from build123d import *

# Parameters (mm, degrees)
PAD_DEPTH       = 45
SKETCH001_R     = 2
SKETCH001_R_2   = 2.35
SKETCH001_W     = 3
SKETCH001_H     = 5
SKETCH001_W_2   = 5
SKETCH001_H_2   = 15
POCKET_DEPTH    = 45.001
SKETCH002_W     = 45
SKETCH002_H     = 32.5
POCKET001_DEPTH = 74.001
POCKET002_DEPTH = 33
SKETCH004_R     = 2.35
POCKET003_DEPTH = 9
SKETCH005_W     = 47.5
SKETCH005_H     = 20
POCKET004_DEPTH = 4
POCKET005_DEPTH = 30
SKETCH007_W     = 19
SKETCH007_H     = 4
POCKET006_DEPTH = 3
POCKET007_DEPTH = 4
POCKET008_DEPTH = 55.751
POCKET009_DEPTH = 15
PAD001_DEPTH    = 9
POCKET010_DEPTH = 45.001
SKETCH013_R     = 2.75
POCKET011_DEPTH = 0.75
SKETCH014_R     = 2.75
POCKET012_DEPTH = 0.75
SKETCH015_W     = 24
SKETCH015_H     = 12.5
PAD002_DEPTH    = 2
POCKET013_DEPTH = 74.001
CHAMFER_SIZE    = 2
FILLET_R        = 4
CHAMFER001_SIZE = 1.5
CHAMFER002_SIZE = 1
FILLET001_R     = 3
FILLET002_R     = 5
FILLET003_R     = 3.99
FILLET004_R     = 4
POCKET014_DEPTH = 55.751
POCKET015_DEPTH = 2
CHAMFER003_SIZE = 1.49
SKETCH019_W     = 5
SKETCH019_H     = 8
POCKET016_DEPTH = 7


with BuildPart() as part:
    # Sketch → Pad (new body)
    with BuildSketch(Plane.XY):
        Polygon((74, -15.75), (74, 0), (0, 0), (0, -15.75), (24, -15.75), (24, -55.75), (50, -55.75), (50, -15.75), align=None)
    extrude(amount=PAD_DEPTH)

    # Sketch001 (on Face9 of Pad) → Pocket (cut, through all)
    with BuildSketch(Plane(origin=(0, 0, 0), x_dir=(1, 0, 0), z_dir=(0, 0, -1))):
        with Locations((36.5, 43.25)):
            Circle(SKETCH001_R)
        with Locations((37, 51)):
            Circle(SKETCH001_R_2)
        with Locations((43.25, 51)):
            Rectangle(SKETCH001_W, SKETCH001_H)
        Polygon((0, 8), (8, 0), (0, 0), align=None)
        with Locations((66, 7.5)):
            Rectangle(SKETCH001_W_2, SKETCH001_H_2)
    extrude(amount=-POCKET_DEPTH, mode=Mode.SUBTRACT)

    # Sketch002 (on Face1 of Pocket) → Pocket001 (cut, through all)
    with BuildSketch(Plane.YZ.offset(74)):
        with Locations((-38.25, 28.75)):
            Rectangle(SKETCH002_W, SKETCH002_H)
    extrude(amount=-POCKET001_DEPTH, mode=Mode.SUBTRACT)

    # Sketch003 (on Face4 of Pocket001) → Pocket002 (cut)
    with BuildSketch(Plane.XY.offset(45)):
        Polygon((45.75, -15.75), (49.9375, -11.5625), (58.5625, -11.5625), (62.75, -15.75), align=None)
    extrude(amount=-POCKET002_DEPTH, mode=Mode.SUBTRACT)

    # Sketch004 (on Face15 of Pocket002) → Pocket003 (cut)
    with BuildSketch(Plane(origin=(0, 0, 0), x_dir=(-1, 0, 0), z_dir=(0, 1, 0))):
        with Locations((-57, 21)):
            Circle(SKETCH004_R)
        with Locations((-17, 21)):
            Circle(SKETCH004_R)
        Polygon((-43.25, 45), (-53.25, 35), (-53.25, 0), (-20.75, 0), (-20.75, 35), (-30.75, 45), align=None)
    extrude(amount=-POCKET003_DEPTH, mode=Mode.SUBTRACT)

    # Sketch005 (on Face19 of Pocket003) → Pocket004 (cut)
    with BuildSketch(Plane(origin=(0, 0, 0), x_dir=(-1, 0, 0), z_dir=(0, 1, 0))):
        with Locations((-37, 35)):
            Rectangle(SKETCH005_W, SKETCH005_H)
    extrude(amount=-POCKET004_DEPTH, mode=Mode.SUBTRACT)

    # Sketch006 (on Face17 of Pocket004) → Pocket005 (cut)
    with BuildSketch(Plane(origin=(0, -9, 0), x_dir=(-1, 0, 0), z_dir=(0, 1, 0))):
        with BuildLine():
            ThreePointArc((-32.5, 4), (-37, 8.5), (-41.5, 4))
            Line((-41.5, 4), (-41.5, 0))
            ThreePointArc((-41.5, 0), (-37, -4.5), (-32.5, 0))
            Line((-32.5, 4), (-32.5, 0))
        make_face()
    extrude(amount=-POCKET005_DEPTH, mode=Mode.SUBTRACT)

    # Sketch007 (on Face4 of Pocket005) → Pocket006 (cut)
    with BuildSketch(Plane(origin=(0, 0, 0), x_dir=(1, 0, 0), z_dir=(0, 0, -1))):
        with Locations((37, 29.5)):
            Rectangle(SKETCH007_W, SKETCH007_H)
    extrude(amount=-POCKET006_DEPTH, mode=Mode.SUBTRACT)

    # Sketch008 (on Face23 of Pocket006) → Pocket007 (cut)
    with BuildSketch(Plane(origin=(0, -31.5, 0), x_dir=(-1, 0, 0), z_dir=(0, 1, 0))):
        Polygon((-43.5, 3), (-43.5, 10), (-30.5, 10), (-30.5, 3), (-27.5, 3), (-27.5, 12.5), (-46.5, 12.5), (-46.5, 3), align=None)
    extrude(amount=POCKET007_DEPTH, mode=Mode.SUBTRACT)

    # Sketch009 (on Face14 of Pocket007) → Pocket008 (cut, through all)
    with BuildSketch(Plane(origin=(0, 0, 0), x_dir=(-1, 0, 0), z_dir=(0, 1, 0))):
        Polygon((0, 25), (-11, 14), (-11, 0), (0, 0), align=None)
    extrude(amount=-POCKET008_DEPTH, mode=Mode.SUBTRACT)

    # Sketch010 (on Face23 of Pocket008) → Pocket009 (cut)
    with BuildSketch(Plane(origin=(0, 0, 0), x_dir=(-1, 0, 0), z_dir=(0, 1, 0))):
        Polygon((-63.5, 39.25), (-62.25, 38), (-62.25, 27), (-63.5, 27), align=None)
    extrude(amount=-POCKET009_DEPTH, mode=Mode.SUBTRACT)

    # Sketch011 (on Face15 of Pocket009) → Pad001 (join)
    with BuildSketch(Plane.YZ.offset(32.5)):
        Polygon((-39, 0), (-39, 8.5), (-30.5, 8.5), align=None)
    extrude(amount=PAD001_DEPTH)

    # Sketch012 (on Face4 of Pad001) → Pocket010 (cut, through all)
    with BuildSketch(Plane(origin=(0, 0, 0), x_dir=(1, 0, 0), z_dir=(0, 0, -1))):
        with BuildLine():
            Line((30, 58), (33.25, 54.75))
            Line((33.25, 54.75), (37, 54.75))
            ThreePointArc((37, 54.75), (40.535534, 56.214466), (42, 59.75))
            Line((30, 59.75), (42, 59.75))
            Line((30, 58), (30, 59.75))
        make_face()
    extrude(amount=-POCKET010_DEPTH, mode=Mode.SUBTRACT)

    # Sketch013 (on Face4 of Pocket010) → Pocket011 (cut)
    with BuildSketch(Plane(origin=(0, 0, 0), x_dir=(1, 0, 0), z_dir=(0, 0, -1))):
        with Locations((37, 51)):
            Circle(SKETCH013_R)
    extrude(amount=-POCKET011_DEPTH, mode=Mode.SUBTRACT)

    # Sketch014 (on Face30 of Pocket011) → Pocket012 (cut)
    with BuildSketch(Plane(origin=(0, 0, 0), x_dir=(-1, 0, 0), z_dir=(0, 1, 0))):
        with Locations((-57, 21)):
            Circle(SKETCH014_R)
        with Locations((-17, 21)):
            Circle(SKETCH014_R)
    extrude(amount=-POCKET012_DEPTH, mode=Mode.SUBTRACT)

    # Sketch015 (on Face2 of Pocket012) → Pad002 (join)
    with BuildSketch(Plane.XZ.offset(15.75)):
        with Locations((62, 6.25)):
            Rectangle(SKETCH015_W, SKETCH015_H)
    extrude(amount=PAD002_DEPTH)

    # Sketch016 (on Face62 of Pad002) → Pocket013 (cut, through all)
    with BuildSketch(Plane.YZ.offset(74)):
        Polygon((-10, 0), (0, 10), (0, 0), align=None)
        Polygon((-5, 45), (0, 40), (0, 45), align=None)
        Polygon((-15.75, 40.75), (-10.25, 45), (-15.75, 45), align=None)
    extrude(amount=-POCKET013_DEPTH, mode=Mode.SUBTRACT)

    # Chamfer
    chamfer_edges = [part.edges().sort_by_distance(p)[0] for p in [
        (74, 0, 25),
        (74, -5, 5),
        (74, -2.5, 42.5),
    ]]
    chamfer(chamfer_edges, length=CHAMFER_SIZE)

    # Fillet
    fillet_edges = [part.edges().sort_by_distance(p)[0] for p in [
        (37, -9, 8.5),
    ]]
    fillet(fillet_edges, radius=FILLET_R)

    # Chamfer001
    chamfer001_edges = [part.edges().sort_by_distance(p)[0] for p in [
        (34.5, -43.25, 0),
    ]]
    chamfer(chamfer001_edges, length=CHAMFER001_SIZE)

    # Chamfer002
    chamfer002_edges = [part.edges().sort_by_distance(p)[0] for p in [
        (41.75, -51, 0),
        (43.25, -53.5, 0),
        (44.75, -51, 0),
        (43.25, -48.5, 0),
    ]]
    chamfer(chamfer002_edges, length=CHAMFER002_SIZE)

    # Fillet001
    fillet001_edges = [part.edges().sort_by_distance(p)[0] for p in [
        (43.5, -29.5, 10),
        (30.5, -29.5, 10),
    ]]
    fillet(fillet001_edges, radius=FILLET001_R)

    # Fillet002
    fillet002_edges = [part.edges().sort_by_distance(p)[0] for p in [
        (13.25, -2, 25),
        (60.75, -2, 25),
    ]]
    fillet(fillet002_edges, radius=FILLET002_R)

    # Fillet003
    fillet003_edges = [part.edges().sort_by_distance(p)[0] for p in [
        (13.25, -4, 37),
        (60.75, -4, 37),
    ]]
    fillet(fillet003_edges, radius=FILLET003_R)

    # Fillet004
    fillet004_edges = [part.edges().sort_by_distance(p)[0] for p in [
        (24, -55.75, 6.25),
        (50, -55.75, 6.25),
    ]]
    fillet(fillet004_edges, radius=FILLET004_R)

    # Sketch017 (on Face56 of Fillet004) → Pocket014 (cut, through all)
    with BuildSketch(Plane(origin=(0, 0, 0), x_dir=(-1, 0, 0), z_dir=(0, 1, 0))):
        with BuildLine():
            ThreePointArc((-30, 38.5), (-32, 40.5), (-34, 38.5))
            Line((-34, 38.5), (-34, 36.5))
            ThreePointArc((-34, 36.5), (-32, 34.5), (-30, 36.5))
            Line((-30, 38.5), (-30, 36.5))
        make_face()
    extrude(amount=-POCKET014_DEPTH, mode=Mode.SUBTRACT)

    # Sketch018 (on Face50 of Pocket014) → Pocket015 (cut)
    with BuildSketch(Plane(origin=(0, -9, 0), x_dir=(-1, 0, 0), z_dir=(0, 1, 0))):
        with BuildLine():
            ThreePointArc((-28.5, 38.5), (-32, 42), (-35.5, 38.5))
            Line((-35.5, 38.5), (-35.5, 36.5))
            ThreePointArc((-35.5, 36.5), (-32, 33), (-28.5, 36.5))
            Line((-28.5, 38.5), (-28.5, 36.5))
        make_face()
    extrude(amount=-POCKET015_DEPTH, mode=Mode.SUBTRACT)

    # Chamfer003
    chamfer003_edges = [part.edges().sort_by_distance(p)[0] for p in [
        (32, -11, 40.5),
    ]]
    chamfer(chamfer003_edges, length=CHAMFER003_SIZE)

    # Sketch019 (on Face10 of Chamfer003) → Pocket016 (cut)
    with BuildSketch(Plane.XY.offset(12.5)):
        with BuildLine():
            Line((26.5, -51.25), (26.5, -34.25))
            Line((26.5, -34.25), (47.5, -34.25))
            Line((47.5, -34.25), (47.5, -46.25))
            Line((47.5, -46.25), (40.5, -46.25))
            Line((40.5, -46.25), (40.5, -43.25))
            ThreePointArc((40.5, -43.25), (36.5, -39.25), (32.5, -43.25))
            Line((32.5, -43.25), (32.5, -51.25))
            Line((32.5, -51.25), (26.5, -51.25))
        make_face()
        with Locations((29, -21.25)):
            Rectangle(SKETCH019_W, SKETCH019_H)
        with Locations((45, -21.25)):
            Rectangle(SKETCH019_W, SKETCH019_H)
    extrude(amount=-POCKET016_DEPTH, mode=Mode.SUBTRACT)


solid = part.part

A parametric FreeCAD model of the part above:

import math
import FreeCAD as App
import Part
import Sketcher
from FreeCAD import Vector
Q = App.Units.Quantity


def edges_at(feature, points):
    """Names of the edges that pass closest to the given points."""
    edges = feature.Shape.Edges
    near = lambda p: min(range(len(edges)), key=lambda i: edges[i].distToShape(Part.Vertex(*p))[0])
    return sorted({f"Edge{near(p) + 1}" for p in points})

doc = App.newDocument("Part")
body = doc.addObject("PartDesign::Body", "Body")

# Sketch on XY plane
sketch1 = doc.addObject("Sketcher::SketchObject", "Sketch")
body.addObject(sketch1)
sketch1.AttachmentSupport = (doc.XY_Plane, [""])
sketch1.MapMode = "FlatFace"
sketch1.addGeometry([
    Part.LineSegment(Vector(74, -15.75, 0), Vector(74, 0, 0)),  # 0
    Part.LineSegment(Vector(74, 0, 0), Vector(0, 0, 0)),  # 1
    Part.LineSegment(Vector(0, 0, 0), Vector(0, -15.75, 0)),  # 2
    Part.LineSegment(Vector(0, -15.75, 0), Vector(24, -15.75, 0)),  # 3
    Part.LineSegment(Vector(24, -15.75, 0), Vector(24, -55.75, 0)),  # 4
    Part.LineSegment(Vector(24, -55.75, 0), Vector(50, -55.75, 0)),  # 5
    Part.LineSegment(Vector(50, -55.75, 0), Vector(50, -15.75, 0)),  # 6
    Part.LineSegment(Vector(50, -15.75, 0), Vector(74, -15.75, 0)),  # 7
], False)
sketch1.addConstraint([
    Sketcher.Constraint("Coincident", 0, 2, 1, 1),
    Sketcher.Constraint("Coincident", 1, 2, 2, 1),
    Sketcher.Constraint("Coincident", 2, 2, 3, 1),
    Sketcher.Constraint("Coincident", 3, 2, 4, 1),
    Sketcher.Constraint("Coincident", 4, 2, 5, 1),
    Sketcher.Constraint("Coincident", 5, 2, 6, 1),
    Sketcher.Constraint("Coincident", 6, 2, 7, 1),
    Sketcher.Constraint("Coincident", 7, 2, 0, 1),
    Sketcher.Constraint("Vertical", 0),
    Sketcher.Constraint("Horizontal", 1),
    Sketcher.Constraint("Vertical", 2),
    Sketcher.Constraint("Horizontal", 3),
    Sketcher.Constraint("Vertical", 4),
    Sketcher.Constraint("Horizontal", 5),
    Sketcher.Constraint("Vertical", 6),
    Sketcher.Constraint("Horizontal", 7),
    Sketcher.Constraint("Coincident", 1, 2, -1, 1),
    Sketcher.Constraint("Horizontal", 3, 2, 6, 2),
    Sketcher.Constraint("Equal", 3, 7),
    Sketcher.Constraint("DistanceX", 1, 2, 1, 1, 74.0),
    Sketcher.Constraint("DistanceX", 3, 1, 3, 2, 24.0),
    Sketcher.Constraint("DistanceY", 4, 2, 4, 1, 40.0),
    Sketcher.Constraint("DistanceY", 0, 1, 0, 2, 15.75),
])
pad1 = doc.addObject("PartDesign::Pad", "Pad")
body.addObject(pad1)
pad1.Profile = sketch1
pad1.Length = 45

# Sketch on XY plane
sketch2 = doc.addObject("Sketcher::SketchObject", "Sketch001")
body.addObject(sketch2)
sketch2.AttachmentSupport = (doc.XY_Plane, [""])
sketch2.MapMode = "FlatFace"
sketch2.addGeometry([
    Part.Circle(Vector(36.5, -43.25, 0), Vector(0, 0, 1), 2),  # 0
    Part.Circle(Vector(37, -51, 0), Vector(0, 0, 1), 2.35),  # 1
    Part.LineSegment(Vector(41.75, -53.5, 0), Vector(41.75, -48.5, 0)),  # 2
    Part.LineSegment(Vector(41.75, -48.5, 0), Vector(44.75, -48.5, 0)),  # 3
    Part.LineSegment(Vector(44.75, -48.5, 0), Vector(44.75, -53.5, 0)),  # 4
    Part.LineSegment(Vector(44.75, -53.5, 0), Vector(41.75, -53.5, 0)),  # 5
    Part.LineSegment(Vector(8, 0, 0), Vector(0, -8, 0)),  # 6
    Part.LineSegment(Vector(0, -8, 0), Vector(0, 0, 0)),  # 7
    Part.LineSegment(Vector(0, 0, 0), Vector(8, 0, 0)),  # 8
    Part.LineSegment(Vector(63.5, -15, 0), Vector(63.5, 0, 0)),  # 9
    Part.LineSegment(Vector(63.5, 0, 0), Vector(68.5, 0, 0)),  # 10
    Part.LineSegment(Vector(68.5, 0, 0), Vector(68.5, -15, 0)),  # 11
    Part.LineSegment(Vector(68.5, -15, 0), Vector(63.5, -15, 0)),  # 12
], False)
sketch2.addConstraint([
    Sketcher.Constraint("Coincident", 2, 2, 3, 1),
    Sketcher.Constraint("Coincident", 3, 2, 4, 1),
    Sketcher.Constraint("Coincident", 4, 2, 5, 1),
    Sketcher.Constraint("Coincident", 5, 2, 2, 1),
    Sketcher.Constraint("Coincident", 6, 2, 7, 1),
    Sketcher.Constraint("Coincident", 7, 2, 8, 1),
    Sketcher.Constraint("Coincident", 8, 2, 6, 1),
    Sketcher.Constraint("Coincident", 9, 2, 10, 1),
    Sketcher.Constraint("Coincident", 10, 2, 11, 1),
    Sketcher.Constraint("Coincident", 11, 2, 12, 1),
    Sketcher.Constraint("Coincident", 12, 2, 9, 1),
    Sketcher.Constraint("Vertical", 2),
    Sketcher.Constraint("Horizontal", 3),
    Sketcher.Constraint("Vertical", 4),
    Sketcher.Constraint("Horizontal", 5),
    Sketcher.Constraint("Vertical", 7),
    Sketcher.Constraint("Horizontal", 8),
    Sketcher.Constraint("Vertical", 9),
    Sketcher.Constraint("Horizontal", 10),
    Sketcher.Constraint("Vertical", 11),
    Sketcher.Constraint("Horizontal", 12),
    Sketcher.Constraint("Coincident", 7, 2, -1, 1),
    Sketcher.Constraint("PointOnObject", 9, 2, -1),
    Sketcher.Constraint("Equal", 12, 2),
    Sketcher.Constraint("Equal", 8, 7),
    Sketcher.Constraint("Diameter", 0, 4.0),
    Sketcher.Constraint("Diameter", 1, 4.7),
    Sketcher.Constraint("DistanceX", 3, 1, 3, 2, 3.0),
    Sketcher.Constraint("DistanceX", 8, 1, 8, 2, 8.0),
    Sketcher.Constraint("DistanceX", 10, 1, 10, 2, 5.0),
    Sketcher.Constraint("DistanceY", 9, 1, 9, 2, 15.0),
    Sketcher.Constraint("DistanceX", -1, 1, 1, 3, 37.0),
    Sketcher.Constraint("DistanceY", 1, 3, -1, 1, 51.0),
    Sketcher.Constraint("DistanceX", 0, 3, 9, 2, 27.0),
    Sketcher.Constraint("DistanceX", -1, 1, 0, 3, 36.5),
    Sketcher.Constraint("DistanceY", 2, 2, -1, 1, 48.5),
    Sketcher.Constraint("DistanceY", 0, 3, -1, 1, 43.25),
    Sketcher.Constraint("DistanceX", -1, 1, 2, 2, 41.75),
])
pocket1 = doc.addObject("PartDesign::Pocket", "Pocket")
body.addObject(pocket1)
pocket1.Profile = sketch2
pocket1.Type = "ThroughAll"
pocket1.Reversed = True

# Sketch on YZ plane
sketch3 = doc.addObject("Sketcher::SketchObject", "Sketch002")
body.addObject(sketch3)
sketch3.AttachmentSupport = (doc.YZ_Plane, [""])
sketch3.MapMode = "FlatFace"
sketch3.AttachmentOffset = App.Placement(Vector(0, 0, 74), App.Rotation())
sketch3.addGeometry([
    Part.LineSegment(Vector(-60.75, 45, 0), Vector(-60.75, 12.5, 0)),
    Part.LineSegment(Vector(-60.75, 12.5, 0), Vector(-15.75, 12.5, 0)),
    Part.LineSegment(Vector(-15.75, 12.5, 0), Vector(-15.75, 45, 0)),
    Part.LineSegment(Vector(-15.75, 45, 0), Vector(-60.75, 45, 0)),
], False)
sketch3.addConstraint([
    Sketcher.Constraint("Coincident", 0, 2, 1, 1),
    Sketcher.Constraint("Coincident", 1, 2, 2, 1),
    Sketcher.Constraint("Coincident", 2, 2, 3, 1),
    Sketcher.Constraint("Coincident", 3, 2, 0, 1),
    Sketcher.Constraint("Vertical", 0),
    Sketcher.Constraint("Horizontal", 1),
    Sketcher.Constraint("Vertical", 2),
    Sketcher.Constraint("Horizontal", 3),
    Sketcher.Constraint("DistanceX", 1, 1, 1, 2, 45.0),
    Sketcher.Constraint("DistanceY", 0, 2, 0, 1, 32.5),
    Sketcher.Constraint("DistanceY", -1, 1, 2, 2, 45.0),
    Sketcher.Constraint("DistanceX", 0, 2, -1, 1, 60.75),
])
pocket2 = doc.addObject("PartDesign::Pocket", "Pocket001")
body.addObject(pocket2)
pocket2.Profile = sketch3
pocket2.Type = "ThroughAll"

# Sketch on XY plane
sketch4 = doc.addObject("Sketcher::SketchObject", "Sketch003")
body.addObject(sketch4)
sketch4.AttachmentSupport = (doc.XY_Plane, [""])
sketch4.MapMode = "FlatFace"
sketch4.AttachmentOffset = App.Placement(Vector(0, 0, 45), App.Rotation())
sketch4.addGeometry([
    Part.LineSegment(Vector(49.9375, -11.5625, 0), Vector(45.75, -15.75, 0)),
    Part.LineSegment(Vector(45.75, -15.75, 0), Vector(62.75, -15.75, 0)),
    Part.LineSegment(Vector(62.75, -15.75, 0), Vector(58.5625, -11.5625, 0)),
    Part.LineSegment(Vector(58.5625, -11.5625, 0), Vector(49.9375, -11.5625, 0)),
], False)
sketch4.addConstraint([
    Sketcher.Constraint("Coincident", 0, 2, 1, 1),
    Sketcher.Constraint("Coincident", 1, 2, 2, 1),
    Sketcher.Constraint("Coincident", 2, 2, 3, 1),
    Sketcher.Constraint("Coincident", 3, 2, 0, 1),
    Sketcher.Constraint("Horizontal", 1),
    Sketcher.Constraint("Horizontal", 3),
    Sketcher.Constraint("Perpendicular", 0, 2),
    Sketcher.Constraint("Equal", 0, 2),
    Sketcher.Constraint("DistanceX", 1, 1, 1, 2, 17.0),
    Sketcher.Constraint("DistanceX", 3, 2, 3, 1, 8.625),
    Sketcher.Constraint("DistanceX", -1, 1, 0, 2, 45.75),
    Sketcher.Constraint("DistanceY", 0, 2, -1, 1, 15.75),
])
pocket3 = doc.addObject("PartDesign::Pocket", "Pocket002")
body.addObject(pocket3)
pocket3.Profile = sketch4
pocket3.Length = 33

# Sketch on XZ plane
sketch5 = doc.addObject("Sketcher::SketchObject", "Sketch004")
body.addObject(sketch5)
sketch5.AttachmentSupport = (doc.XZ_Plane, [""])
sketch5.MapMode = "FlatFace"
sketch5.addGeometry([
    Part.Circle(Vector(57, 21, 0), Vector(0, 0, 1), 2.35),  # 0
    Part.Circle(Vector(17, 21, 0), Vector(0, 0, 1), 2.35),  # 1
    Part.LineSegment(Vector(43.25, 45, 0), Vector(53.25, 35, 0)),  # 2
    Part.LineSegment(Vector(53.25, 35, 0), Vector(53.25, 0, 0)),  # 3
    Part.LineSegment(Vector(53.25, 0, 0), Vector(20.75, 0, 0)),  # 4
    Part.LineSegment(Vector(20.75, 0, 0), Vector(20.75, 35, 0)),  # 5
    Part.LineSegment(Vector(20.75, 35, 0), Vector(30.75, 45, 0)),  # 6
    Part.LineSegment(Vector(30.75, 45, 0), Vector(43.25, 45, 0)),  # 7
], False)
sketch5.addConstraint([
    Sketcher.Constraint("Coincident", 2, 2, 3, 1),
    Sketcher.Constraint("Coincident", 3, 2, 4, 1),
    Sketcher.Constraint("Coincident", 4, 2, 5, 1),
    Sketcher.Constraint("Coincident", 5, 2, 6, 1),
    Sketcher.Constraint("Coincident", 6, 2, 7, 1),
    Sketcher.Constraint("Coincident", 7, 2, 2, 1),
    Sketcher.Constraint("Vertical", 3),
    Sketcher.Constraint("Horizontal", 4),
    Sketcher.Constraint("Vertical", 5),
    Sketcher.Constraint("Horizontal", 7),
    Sketcher.Constraint("Equal", 0, 1),
    Sketcher.Constraint("PointOnObject", 3, 2, -1),
    Sketcher.Constraint("Perpendicular", 2, 6),
    Sketcher.Constraint("Horizontal", 0, 3, 1, 3),
    Sketcher.Constraint("Horizontal", 2, 2, 5, 2),
    Sketcher.Constraint("Equal", 2, 6),
    Sketcher.Constraint("Diameter", 0, 4.7),
    Sketcher.Constraint("DistanceY", 3, 2, 3, 1, 35.0),
    Sketcher.Constraint("DistanceX", 4, 2, 4, 1, 32.5),
    Sketcher.Constraint("DistanceX", 7, 1, 7, 2, 12.5),
    Sketcher.Constraint("DistanceX", -1, 1, 0, 3, 57.0),
    Sketcher.Constraint("DistanceY", -1, 1, 0, 3, 21.0),
    Sketcher.Constraint("DistanceX", -1, 1, 1, 3, 17.0),
    Sketcher.Constraint("DistanceX", -1, 1, 2, 2, 53.25),
])
pocket4 = doc.addObject("PartDesign::Pocket", "Pocket003")
body.addObject(pocket4)
pocket4.Profile = sketch5
pocket4.Length = 9
pocket4.Reversed = True

# Sketch on XZ plane
sketch6 = doc.addObject("Sketcher::SketchObject", "Sketch005")
body.addObject(sketch6)
sketch6.AttachmentSupport = (doc.XZ_Plane, [""])
sketch6.MapMode = "FlatFace"
sketch6.addGeometry([
    Part.LineSegment(Vector(60.75, 45, 0), Vector(60.75, 25, 0)),
    Part.LineSegment(Vector(60.75, 25, 0), Vector(13.25, 25, 0)),
    Part.LineSegment(Vector(13.25, 25, 0), Vector(13.25, 45, 0)),
    Part.LineSegment(Vector(13.25, 45, 0), Vector(60.75, 45, 0)),
], False)
sketch6.addConstraint([
    Sketcher.Constraint("Coincident", 0, 2, 1, 1),
    Sketcher.Constraint("Coincident", 1, 2, 2, 1),
    Sketcher.Constraint("Coincident", 2, 2, 3, 1),
    Sketcher.Constraint("Coincident", 3, 2, 0, 1),
    Sketcher.Constraint("Vertical", 0),
    Sketcher.Constraint("Horizontal", 1),
    Sketcher.Constraint("Vertical", 2),
    Sketcher.Constraint("Horizontal", 3),
    Sketcher.Constraint("DistanceY", 0, 2, 0, 1, 20.0),
    Sketcher.Constraint("DistanceX", 1, 2, 1, 1, 47.5),
    Sketcher.Constraint("DistanceY", -1, 1, 0, 2, 25.0),
    Sketcher.Constraint("DistanceX", -1, 1, 0, 2, 60.75),
])
pocket5 = doc.addObject("PartDesign::Pocket", "Pocket004")
body.addObject(pocket5)
pocket5.Profile = sketch6
pocket5.Length = 4
pocket5.Reversed = True

# Sketch on XZ plane
sketch7 = doc.addObject("Sketcher::SketchObject", "Sketch006")
body.addObject(sketch7)
sketch7.AttachmentSupport = (doc.XZ_Plane, [""])
sketch7.MapMode = "FlatFace"
sketch7.AttachmentOffset = App.Placement(Vector(0, 0, 9), App.Rotation())
sketch7.addGeometry([
    Part.ArcOfCircle(Part.Circle(Vector(37, 4, 0), Vector(0, 0, 1), 4.5), math.radians(0), math.radians(180)),
    Part.LineSegment(Vector(41.5, 4, 0), Vector(41.5, 0, 0)),
    Part.ArcOfCircle(Part.Circle(Vector(37, 0, 0), Vector(0, 0, 1), 4.5), math.radians(180), math.radians(360)),
    Part.LineSegment(Vector(32.5, 0, 0), Vector(32.5, 4, 0)),
], False)
sketch7.addConstraint([
    Sketcher.Constraint("Tangent", 0, 1, 1, 1),
    Sketcher.Constraint("Tangent", 1, 2, 2, 2),
    Sketcher.Constraint("Tangent", 2, 1, 3, 1),
    Sketcher.Constraint("Tangent", 3, 2, 0, 2),
    Sketcher.Constraint("Vertical", 1),
    Sketcher.Constraint("Vertical", 3),
    Sketcher.Constraint("PointOnObject", 2, 3, -1),
    Sketcher.Constraint("Radius", 0, 4.5),
    Sketcher.Constraint("DistanceY", 1, 2, 1, 1, 4.0),
    Sketcher.Constraint("DistanceX", -1, 1, 0, 3, 37.0),
])
pocket6 = doc.addObject("PartDesign::Pocket", "Pocket005")
body.addObject(pocket6)
pocket6.Profile = sketch7
pocket6.Length = 30
pocket6.Reversed = True

# Sketch on XY plane
sketch8 = doc.addObject("Sketcher::SketchObject", "Sketch007")
body.addObject(sketch8)
sketch8.AttachmentSupport = (doc.XY_Plane, [""])
sketch8.MapMode = "FlatFace"
sketch8.addGeometry([
    Part.LineSegment(Vector(27.5, -31.5, 0), Vector(27.5, -27.5, 0)),
    Part.LineSegment(Vector(27.5, -27.5, 0), Vector(46.5, -27.5, 0)),
    Part.LineSegment(Vector(46.5, -27.5, 0), Vector(46.5, -31.5, 0)),
    Part.LineSegment(Vector(46.5, -31.5, 0), Vector(27.5, -31.5, 0)),
], False)
sketch8.addConstraint([
    Sketcher.Constraint("Coincident", 0, 2, 1, 1),
    Sketcher.Constraint("Coincident", 1, 2, 2, 1),
    Sketcher.Constraint("Coincident", 2, 2, 3, 1),
    Sketcher.Constraint("Coincident", 3, 2, 0, 1),
    Sketcher.Constraint("Vertical", 0),
    Sketcher.Constraint("Horizontal", 1),
    Sketcher.Constraint("Vertical", 2),
    Sketcher.Constraint("Horizontal", 3),
    Sketcher.Constraint("DistanceX", 1, 1, 1, 2, 19.0),
    Sketcher.Constraint("DistanceY", 0, 1, 0, 2, 4.0),
    Sketcher.Constraint("DistanceX", -1, 1, 0, 2, 27.5),
    Sketcher.Constraint("DistanceY", 0, 2, -1, 1, 27.5),
])
pocket7 = doc.addObject("PartDesign::Pocket", "Pocket006")
body.addObject(pocket7)
pocket7.Profile = sketch8
pocket7.Length = 3
pocket7.Reversed = True

# Sketch on XZ plane
sketch9 = doc.addObject("Sketcher::SketchObject", "Sketch008")
body.addObject(sketch9)
sketch9.AttachmentSupport = (doc.XZ_Plane, [""])
sketch9.MapMode = "FlatFace"
sketch9.AttachmentOffset = App.Placement(Vector(0, 0, 31.5), App.Rotation())
sketch9.addGeometry([
    Part.LineSegment(Vector(43.5, 3, 0), Vector(43.5, 10, 0)),  # 0
    Part.LineSegment(Vector(43.5, 10, 0), Vector(30.5, 10, 0)),  # 1
    Part.LineSegment(Vector(30.5, 10, 0), Vector(30.5, 3, 0)),  # 2
    Part.LineSegment(Vector(30.5, 3, 0), Vector(27.5, 3, 0)),  # 3
    Part.LineSegment(Vector(27.5, 3, 0), Vector(27.5, 12.5, 0)),  # 4
    Part.LineSegment(Vector(27.5, 12.5, 0), Vector(46.5, 12.5, 0)),  # 5
    Part.LineSegment(Vector(46.5, 12.5, 0), Vector(46.5, 3, 0)),  # 6
    Part.LineSegment(Vector(46.5, 3, 0), Vector(43.5, 3, 0)),  # 7
], False)
sketch9.addConstraint([
    Sketcher.Constraint("Coincident", 0, 2, 1, 1),
    Sketcher.Constraint("Coincident", 1, 2, 2, 1),
    Sketcher.Constraint("Coincident", 2, 2, 3, 1),
    Sketcher.Constraint("Coincident", 3, 2, 4, 1),
    Sketcher.Constraint("Coincident", 4, 2, 5, 1),
    Sketcher.Constraint("Coincident", 5, 2, 6, 1),
    Sketcher.Constraint("Coincident", 6, 2, 7, 1),
    Sketcher.Constraint("Coincident", 7, 2, 0, 1),
    Sketcher.Constraint("Vertical", 0),
    Sketcher.Constraint("Horizontal", 1),
    Sketcher.Constraint("Vertical", 2),
    Sketcher.Constraint("Horizontal", 3),
    Sketcher.Constraint("Vertical", 4),
    Sketcher.Constraint("Horizontal", 5),
    Sketcher.Constraint("Vertical", 6),
    Sketcher.Constraint("Horizontal", 7),
    Sketcher.Constraint("Horizontal", 3, 2, 6, 2),
    Sketcher.Constraint("Equal", 3, 7),
    Sketcher.Constraint("DistanceX", 1, 2, 1, 1, 13.0),
    Sketcher.Constraint("DistanceX", 3, 2, 3, 1, 3.0),
    Sketcher.Constraint("DistanceY", 0, 1, 0, 2, 7.0),
    Sketcher.Constraint("DistanceY", 4, 1, 4, 2, 9.5),
    Sketcher.Constraint("DistanceY", -1, 1, 0, 2, 10.0),
    Sketcher.Constraint("DistanceX", -1, 1, 0, 2, 43.5),
])
pocket8 = doc.addObject("PartDesign::Pocket", "Pocket007")
body.addObject(pocket8)
pocket8.Profile = sketch9
pocket8.Length = 4

# Sketch on XZ plane
sketch10 = doc.addObject("Sketcher::SketchObject", "Sketch009")
body.addObject(sketch10)
sketch10.AttachmentSupport = (doc.XZ_Plane, [""])
sketch10.MapMode = "FlatFace"
sketch10.addGeometry([
    Part.LineSegment(Vector(0, 25, 0), Vector(11, 14, 0)),
    Part.LineSegment(Vector(11, 14, 0), Vector(11, 0, 0)),
    Part.LineSegment(Vector(11, 0, 0), Vector(0, 0, 0)),
    Part.LineSegment(Vector(0, 0, 0), Vector(0, 25, 0)),
], False)
sketch10.addConstraint([
    Sketcher.Constraint("Coincident", 0, 2, 1, 1),
    Sketcher.Constraint("Coincident", 1, 2, 2, 1),
    Sketcher.Constraint("Coincident", 2, 2, 3, 1),
    Sketcher.Constraint("Coincident", 3, 2, 0, 1),
    Sketcher.Constraint("Vertical", 1),
    Sketcher.Constraint("Horizontal", 2),
    Sketcher.Constraint("Vertical", 3),
    Sketcher.Constraint("Coincident", 2, 2, -1, 1),
    Sketcher.Constraint("DistanceX", 2, 2, 2, 1, 11.0),
    Sketcher.Constraint("DistanceY", 1, 2, 1, 1, 14.0),
    Sketcher.Constraint("DistanceY", 3, 1, 3, 2, 25.0),
])
pocket9 = doc.addObject("PartDesign::Pocket", "Pocket008")
body.addObject(pocket9)
pocket9.Profile = sketch10
pocket9.Type = "ThroughAll"
pocket9.Reversed = True

# Sketch on XZ plane
sketch11 = doc.addObject("Sketcher::SketchObject", "Sketch010")
body.addObject(sketch11)
sketch11.AttachmentSupport = (doc.XZ_Plane, [""])
sketch11.MapMode = "FlatFace"
sketch11.addGeometry([
    Part.LineSegment(Vector(62.25, 38, 0), Vector(63.5, 39.25, 0)),
    Part.LineSegment(Vector(63.5, 39.25, 0), Vector(63.5, 27, 0)),
    Part.LineSegment(Vector(63.5, 27, 0), Vector(62.25, 27, 0)),
    Part.LineSegment(Vector(62.25, 27, 0), Vector(62.25, 38, 0)),
], False)
sketch11.addConstraint([
    Sketcher.Constraint("Coincident", 0, 2, 1, 1),
    Sketcher.Constraint("Coincident", 1, 2, 2, 1),
    Sketcher.Constraint("Coincident", 2, 2, 3, 1),
    Sketcher.Constraint("Coincident", 3, 2, 0, 1),
    Sketcher.Constraint("Vertical", 1),
    Sketcher.Constraint("Horizontal", 2),
    Sketcher.Constraint("Vertical", 3),
    Sketcher.Constraint("DistanceY", 3, 1, 3, 2, 11.0),
    Sketcher.Constraint("Angle", 0, Q("45 deg")),
    Sketcher.Constraint("DistanceY", -1, 1, 1, 2, 27.0),
    Sketcher.Constraint("DistanceX", 2, 2, 2, 1, 1.25),
    Sketcher.Constraint("DistanceX", -1, 1, 0, 2, 63.5),
])
pocket10 = doc.addObject("PartDesign::Pocket", "Pocket009")
body.addObject(pocket10)
pocket10.Profile = sketch11
pocket10.Length = 15
pocket10.Reversed = True

# Sketch on YZ plane
sketch12 = doc.addObject("Sketcher::SketchObject", "Sketch011")
body.addObject(sketch12)
sketch12.AttachmentSupport = (doc.YZ_Plane, [""])
sketch12.MapMode = "FlatFace"
sketch12.AttachmentOffset = App.Placement(Vector(0, 0, 32.5), App.Rotation())
sketch12.addGeometry([
    Part.LineSegment(Vector(-39, 8.5, 0), Vector(-39, 0, 0)),
    Part.LineSegment(Vector(-39, 0, 0), Vector(-30.5, 8.5, 0)),
    Part.LineSegment(Vector(-30.5, 8.5, 0), Vector(-39, 8.5, 0)),
], False)
sketch12.addConstraint([
    Sketcher.Constraint("Coincident", 0, 2, 1, 1),
    Sketcher.Constraint("Coincident", 1, 2, 2, 1),
    Sketcher.Constraint("Coincident", 2, 2, 0, 1),
    Sketcher.Constraint("Vertical", 0),
    Sketcher.Constraint("Horizontal", 2),
    Sketcher.Constraint("PointOnObject", 0, 2, -1),
    Sketcher.Constraint("Equal", 2, 0),
    Sketcher.Constraint("DistanceX", 2, 2, 2, 1, 8.5),
    Sketcher.Constraint("DistanceX", 0, 2, -1, 1, 39.0),
])
pad2 = doc.addObject("PartDesign::Pad", "Pad001")
body.addObject(pad2)
pad2.Profile = sketch12
pad2.Length = 9

# Sketch on XY plane
sketch13 = doc.addObject("Sketcher::SketchObject", "Sketch012")
body.addObject(sketch13)
sketch13.AttachmentSupport = (doc.XY_Plane, [""])
sketch13.MapMode = "FlatFace"
sketch13.addGeometry([
    Part.LineSegment(Vector(30, -58, 0), Vector(33.25, -54.75, 0)),  # 0
    Part.LineSegment(Vector(33.25, -54.75, 0), Vector(37, -54.75, 0)),  # 1
    Part.ArcOfCircle(Part.Circle(Vector(37, -59.75, 0), Vector(0, 0, 1), 5), math.radians(-0.000004), math.radians(90.000004)),  # 2
    Part.LineSegment(Vector(42, -59.75, 0), Vector(30, -59.75, 0)),  # 3
    Part.LineSegment(Vector(30, -59.75, 0), Vector(30, -58, 0)),  # 4
], False)
sketch13.addConstraint([
    Sketcher.Constraint("Coincident", 0, 2, 1, 1),
    Sketcher.Constraint("Tangent", 1, 2, 2, 2),
    Sketcher.Constraint("Coincident", 2, 1, 3, 1),
    Sketcher.Constraint("Coincident", 3, 2, 4, 1),
    Sketcher.Constraint("Coincident", 4, 2, 0, 1),
    Sketcher.Constraint("Horizontal", 1),
    Sketcher.Constraint("Horizontal", 3),
    Sketcher.Constraint("Vertical", 4),
    Sketcher.Constraint("Radius", 2, 5.0),
    Sketcher.Constraint("DistanceX", 3, 2, 3, 1, 12.0),
    Sketcher.Constraint("Angle", 0, Q("45 deg")),
    Sketcher.Constraint("DistanceX", -1, 1, 2, 3, 37.0),
    Sketcher.Constraint("DistanceY", 4, 2, -1, 1, 58.0),
    Sketcher.Constraint("DistanceY", 2, 1, 1, 2, 5.0),
    Sketcher.Constraint("DistanceX", 1, 1, 1, 2, 3.75),
])
pocket11 = doc.addObject("PartDesign::Pocket", "Pocket010")
body.addObject(pocket11)
pocket11.Profile = sketch13
pocket11.Type = "ThroughAll"
pocket11.Reversed = True

# Sketch on XY plane
sketch14 = doc.addObject("Sketcher::SketchObject", "Sketch013")
body.addObject(sketch14)
sketch14.AttachmentSupport = (doc.XY_Plane, [""])
sketch14.MapMode = "FlatFace"
sketch14.addGeometry(Part.Circle(Vector(37, -51, 0), Vector(0, 0, 1), 2.75), False)
sketch14.addConstraint([
    Sketcher.Constraint("Diameter", 0, 5.5),
    Sketcher.Constraint("DistanceX", -1, 1, 0, 3, 37.0),
    Sketcher.Constraint("DistanceY", 0, 3, -1, 1, 51.0),
])
pocket12 = doc.addObject("PartDesign::Pocket", "Pocket011")
body.addObject(pocket12)
pocket12.Profile = sketch14
pocket12.Length = 0.75
pocket12.Reversed = True

# Sketch on XZ plane
sketch15 = doc.addObject("Sketcher::SketchObject", "Sketch014")
body.addObject(sketch15)
sketch15.AttachmentSupport = (doc.XZ_Plane, [""])
sketch15.MapMode = "FlatFace"
sketch15.addGeometry([
    Part.Circle(Vector(57, 21, 0), Vector(0, 0, 1), 2.75),
    Part.Circle(Vector(17, 21, 0), Vector(0, 0, 1), 2.75),
], False)
sketch15.addConstraint([
    Sketcher.Constraint("Equal", 0, 1),
    Sketcher.Constraint("Horizontal", 0, 3, 1, 3),
    Sketcher.Constraint("Diameter", 0, 5.5),
    Sketcher.Constraint("DistanceX", -1, 1, 0, 3, 57.0),
    Sketcher.Constraint("DistanceY", -1, 1, 0, 3, 21.0),
    Sketcher.Constraint("DistanceX", -1, 1, 1, 3, 17.0),
])
pocket13 = doc.addObject("PartDesign::Pocket", "Pocket012")
body.addObject(pocket13)
pocket13.Profile = sketch15
pocket13.Length = 0.75
pocket13.Reversed = True

# Sketch on XZ plane
sketch16 = doc.addObject("Sketcher::SketchObject", "Sketch015")
body.addObject(sketch16)
sketch16.AttachmentSupport = (doc.XZ_Plane, [""])
sketch16.MapMode = "FlatFace"
sketch16.AttachmentOffset = App.Placement(Vector(0, 0, 15.75), App.Rotation())
sketch16.addGeometry([
    Part.LineSegment(Vector(50, 12.5, 0), Vector(50, 0, 0)),
    Part.LineSegment(Vector(50, 0, 0), Vector(74, 0, 0)),
    Part.LineSegment(Vector(74, 0, 0), Vector(74, 12.5, 0)),
    Part.LineSegment(Vector(74, 12.5, 0), Vector(50, 12.5, 0)),
], False)
sketch16.addConstraint([
    Sketcher.Constraint("Coincident", 0, 2, 1, 1),
    Sketcher.Constraint("Coincident", 1, 2, 2, 1),
    Sketcher.Constraint("Coincident", 2, 2, 3, 1),
    Sketcher.Constraint("Coincident", 3, 2, 0, 1),
    Sketcher.Constraint("Vertical", 0),
    Sketcher.Constraint("Horizontal", 1),
    Sketcher.Constraint("Vertical", 2),
    Sketcher.Constraint("Horizontal", 3),
    Sketcher.Constraint("PointOnObject", 0, 2, -1),
    Sketcher.Constraint("DistanceX", 1, 1, 1, 2, 24.0),
    Sketcher.Constraint("DistanceY", 0, 2, 0, 1, 12.5),
    Sketcher.Constraint("DistanceX", -1, 1, 0, 2, 50.0),
])
pad3 = doc.addObject("PartDesign::Pad", "Pad002")
body.addObject(pad3)
pad3.Profile = sketch16
pad3.Length = 2

# Sketch on YZ plane
sketch17 = doc.addObject("Sketcher::SketchObject", "Sketch016")
body.addObject(sketch17)
sketch17.AttachmentSupport = (doc.YZ_Plane, [""])
sketch17.MapMode = "FlatFace"
sketch17.AttachmentOffset = App.Placement(Vector(0, 0, 74), App.Rotation())
sketch17.addGeometry([
    Part.LineSegment(Vector(0, 10, 0), Vector(-10, 0, 0)),  # 0
    Part.LineSegment(Vector(-10, 0, 0), Vector(0, 0, 0)),  # 1
    Part.LineSegment(Vector(0, 0, 0), Vector(0, 10, 0)),  # 2
    Part.LineSegment(Vector(-5, 45, 0), Vector(0, 40, 0)),  # 3
    Part.LineSegment(Vector(0, 40, 0), Vector(0, 45, 0)),  # 4
    Part.LineSegment(Vector(0, 45, 0), Vector(-5, 45, 0)),  # 5
    Part.LineSegment(Vector(-15.75, 40.75, 0), Vector(-10.25, 45, 0)),  # 6
    Part.LineSegment(Vector(-10.25, 45, 0), Vector(-15.75, 45, 0)),  # 7
    Part.LineSegment(Vector(-15.75, 45, 0), Vector(-15.75, 40.75, 0)),  # 8
], False)
sketch17.addConstraint([
    Sketcher.Constraint("Coincident", 0, 2, 1, 1),
    Sketcher.Constraint("Coincident", 1, 2, 2, 1),
    Sketcher.Constraint("Coincident", 2, 2, 0, 1),
    Sketcher.Constraint("Coincident", 3, 2, 4, 1),
    Sketcher.Constraint("Coincident", 4, 2, 5, 1),
    Sketcher.Constraint("Coincident", 5, 2, 3, 1),
    Sketcher.Constraint("Coincident", 6, 2, 7, 1),
    Sketcher.Constraint("Coincident", 7, 2, 8, 1),
    Sketcher.Constraint("Coincident", 8, 2, 6, 1),
    Sketcher.Constraint("Horizontal", 1),
    Sketcher.Constraint("Vertical", 2),
    Sketcher.Constraint("Vertical", 4),
    Sketcher.Constraint("Horizontal", 5),
    Sketcher.Constraint("Horizontal", 7),
    Sketcher.Constraint("Vertical", 8),
    Sketcher.Constraint("Coincident", 1, 2, -1, 1),
    Sketcher.Constraint("PointOnObject", 3, 2, -2),
    Sketcher.Constraint("Perpendicular", 0, 3),
    Sketcher.Constraint("Horizontal", 5, 2, 6, 2),
    Sketcher.Constraint("Equal", 1, 2),
    Sketcher.Constraint("DistanceX", 1, 1, 1, 2, 10.0),
    Sketcher.Constraint("DistanceX", 5, 2, 5, 1, 5.0),
    Sketcher.Constraint("DistanceX", 7, 2, 7, 1, 5.5),
    Sketcher.Constraint("DistanceY", -1, 1, 3, 2, 40.0),
    Sketcher.Constraint("DistanceY", 8, 2, 8, 1, 4.25),
    Sketcher.Constraint("DistanceX", 6, 2, -1, 1, 10.25),
])
pocket14 = doc.addObject("PartDesign::Pocket", "Pocket013")
body.addObject(pocket14)
pocket14.Profile = sketch17
pocket14.Type = "ThroughAll"
doc.recompute()

chamfer = doc.addObject("PartDesign::Chamfer", "Chamfer")
body.addObject(chamfer)
chamfer.Base = (pocket14, edges_at(pocket14, [(74, 0, 25), (74, -5, 5), (74, -2.5, 42.5)]))
chamfer.Size = 2
doc.recompute()

fillet = doc.addObject("PartDesign::Fillet", "Fillet")
body.addObject(fillet)
fillet.Base = (chamfer, edges_at(chamfer, [(37, -9, 8.5)]))
fillet.Radius = 4
doc.recompute()

chamfer2 = doc.addObject("PartDesign::Chamfer", "Chamfer001")
body.addObject(chamfer2)
chamfer2.Base = (fillet, edges_at(fillet, [(34.5, -43.25, 0)]))
chamfer2.Size = 1.5
doc.recompute()

chamfer3 = doc.addObject("PartDesign::Chamfer", "Chamfer002")
body.addObject(chamfer3)
chamfer3.Base = (chamfer2, edges_at(chamfer2, [
    (41.75, -51, 0),
    (43.25, -53.5, 0),
    (44.75, -51, 0),
    (43.25, -48.5, 0),
]))
chamfer3.Size = 1
doc.recompute()

fillet2 = doc.addObject("PartDesign::Fillet", "Fillet001")
body.addObject(fillet2)
fillet2.Base = (chamfer3, edges_at(chamfer3, [(43.5, -29.5, 10), (30.5, -29.5, 10)]))
fillet2.Radius = 3
doc.recompute()

fillet3 = doc.addObject("PartDesign::Fillet", "Fillet002")
body.addObject(fillet3)
fillet3.Base = (fillet2, edges_at(fillet2, [(13.25, -2, 25), (60.75, -2, 25)]))
fillet3.Radius = 5
doc.recompute()

fillet4 = doc.addObject("PartDesign::Fillet", "Fillet003")
body.addObject(fillet4)
fillet4.Base = (fillet3, edges_at(fillet3, [(13.25, -4, 37), (60.75, -4, 37)]))
fillet4.Radius = 3.99
doc.recompute()

fillet5 = doc.addObject("PartDesign::Fillet", "Fillet004")
body.addObject(fillet5)
fillet5.Base = (fillet4, edges_at(fillet4, [(24, -55.75, 6.25), (50, -55.75, 6.25)]))
fillet5.Radius = 4

# Sketch on XZ plane
sketch18 = doc.addObject("Sketcher::SketchObject", "Sketch017")
body.addObject(sketch18)
sketch18.AttachmentSupport = (doc.XZ_Plane, [""])
sketch18.MapMode = "FlatFace"
sketch18.addGeometry([
    Part.ArcOfCircle(Part.Circle(Vector(32, 38.5, 0), Vector(0, 0, 1), 2), math.radians(0), math.radians(180)),
    Part.LineSegment(Vector(34, 38.5, 0), Vector(34, 36.5, 0)),
    Part.ArcOfCircle(Part.Circle(Vector(32, 36.5, 0), Vector(0, 0, 1), 2), math.radians(180), math.radians(360)),
    Part.LineSegment(Vector(30, 36.5, 0), Vector(30, 38.5, 0)),
], False)
sketch18.addConstraint([
    Sketcher.Constraint("Tangent", 0, 1, 1, 1),
    Sketcher.Constraint("Tangent", 1, 2, 2, 2),
    Sketcher.Constraint("Tangent", 2, 1, 3, 1),
    Sketcher.Constraint("Tangent", 3, 2, 0, 2),
    Sketcher.Constraint("Vertical", 1),
    Sketcher.Constraint("Vertical", 3),
    Sketcher.Constraint("Radius", 0, 2.0),
    Sketcher.Constraint("DistanceY", 1, 2, 1, 1, 2.0),
    Sketcher.Constraint("DistanceX", -1, 1, 0, 3, 32.0),
    Sketcher.Constraint("DistanceY", -1, 1, 0, 3, 38.5),
])
pocket15 = doc.addObject("PartDesign::Pocket", "Pocket014")
body.addObject(pocket15)
pocket15.Profile = sketch18
pocket15.Type = "ThroughAll"
pocket15.Reversed = True

# Sketch on XZ plane
sketch19 = doc.addObject("Sketcher::SketchObject", "Sketch018")
body.addObject(sketch19)
sketch19.AttachmentSupport = (doc.XZ_Plane, [""])
sketch19.MapMode = "FlatFace"
sketch19.AttachmentOffset = App.Placement(Vector(0, 0, 9), App.Rotation())
sketch19.addGeometry([
    Part.ArcOfCircle(Part.Circle(Vector(32, 38.5, 0), Vector(0, 0, 1), 3.5), math.radians(0), math.radians(180)),
    Part.LineSegment(Vector(35.5, 38.5, 0), Vector(35.5, 36.5, 0)),
    Part.ArcOfCircle(Part.Circle(Vector(32, 36.5, 0), Vector(0, 0, 1), 3.5), math.radians(180), math.radians(360)),
    Part.LineSegment(Vector(28.5, 36.5, 0), Vector(28.5, 38.5, 0)),
], False)
sketch19.addConstraint([
    Sketcher.Constraint("Tangent", 0, 1, 1, 1),
    Sketcher.Constraint("Tangent", 1, 2, 2, 2),
    Sketcher.Constraint("Tangent", 2, 1, 3, 1),
    Sketcher.Constraint("Tangent", 3, 2, 0, 2),
    Sketcher.Constraint("Vertical", 1),
    Sketcher.Constraint("Vertical", 3),
    Sketcher.Constraint("Radius", 0, 3.5),
    Sketcher.Constraint("DistanceY", 1, 2, 1, 1, 2.0),
    Sketcher.Constraint("DistanceX", -1, 1, 0, 3, 32.0),
    Sketcher.Constraint("DistanceY", -1, 1, 0, 3, 38.5),
])
pocket16 = doc.addObject("PartDesign::Pocket", "Pocket015")
body.addObject(pocket16)
pocket16.Profile = sketch19
pocket16.Length = 2
pocket16.Reversed = True
doc.recompute()

chamfer4 = doc.addObject("PartDesign::Chamfer", "Chamfer003")
body.addObject(chamfer4)
chamfer4.Base = (pocket16, edges_at(pocket16, [(32, -11, 40.5)]))
chamfer4.Size = 1.49

# Sketch on XY plane
sketch20 = doc.addObject("Sketcher::SketchObject", "Sketch019")
body.addObject(sketch20)
sketch20.AttachmentSupport = (doc.XY_Plane, [""])
sketch20.MapMode = "FlatFace"
sketch20.AttachmentOffset = App.Placement(Vector(0, 0, 12.5), App.Rotation())
sketch20.addGeometry([
    Part.LineSegment(Vector(26.5, -34.25, 0), Vector(26.5, -51.25, 0)),  # 0
    Part.LineSegment(Vector(26.5, -51.25, 0), Vector(32.5, -51.25, 0)),  # 1
    Part.LineSegment(Vector(32.5, -51.25, 0), Vector(32.5, -43.25, 0)),  # 2
    Part.ArcOfCircle(Part.Circle(Vector(36.5, -43.25, 0), Vector(0, 0, 1), 4), math.radians(0), math.radians(180)),  # 3
    Part.LineSegment(Vector(40.5, -43.25, 0), Vector(40.5, -46.25, 0)),  # 4
    Part.LineSegment(Vector(40.5, -46.25, 0), Vector(47.5, -46.25, 0)),  # 5
    Part.LineSegment(Vector(47.5, -46.25, 0), Vector(47.5, -34.25, 0)),  # 6
    Part.LineSegment(Vector(47.5, -34.25, 0), Vector(26.5, -34.25, 0)),  # 7
    Part.LineSegment(Vector(26.5, -17.25, 0), Vector(26.5, -25.25, 0)),  # 8
    Part.LineSegment(Vector(26.5, -25.25, 0), Vector(31.5, -25.25, 0)),  # 9
    Part.LineSegment(Vector(31.5, -25.25, 0), Vector(31.5, -17.25, 0)),  # 10
    Part.LineSegment(Vector(31.5, -17.25, 0), Vector(26.5, -17.25, 0)),  # 11
    Part.LineSegment(Vector(42.5, -17.25, 0), Vector(42.5, -25.25, 0)),  # 12
    Part.LineSegment(Vector(42.5, -25.25, 0), Vector(47.5, -25.25, 0)),  # 13
    Part.LineSegment(Vector(47.5, -25.25, 0), Vector(47.5, -17.25, 0)),  # 14
    Part.LineSegment(Vector(47.5, -17.25, 0), Vector(42.5, -17.25, 0)),  # 15
], False)
sketch20.addConstraint([
    Sketcher.Constraint("Coincident", 0, 2, 1, 1),
    Sketcher.Constraint("Coincident", 1, 2, 2, 1),
    Sketcher.Constraint("Tangent", 2, 2, 3, 2),
    Sketcher.Constraint("Tangent", 3, 1, 4, 1),
    Sketcher.Constraint("Coincident", 4, 2, 5, 1),
    Sketcher.Constraint("Coincident", 5, 2, 6, 1),
    Sketcher.Constraint("Coincident", 6, 2, 7, 1),
    Sketcher.Constraint("Coincident", 7, 2, 0, 1),
    Sketcher.Constraint("Coincident", 8, 2, 9, 1),
    Sketcher.Constraint("Coincident", 9, 2, 10, 1),
    Sketcher.Constraint("Coincident", 10, 2, 11, 1),
    Sketcher.Constraint("Coincident", 11, 2, 8, 1),
    Sketcher.Constraint("Coincident", 12, 2, 13, 1),
    Sketcher.Constraint("Coincident", 13, 2, 14, 1),
    Sketcher.Constraint("Coincident", 14, 2, 15, 1),
    Sketcher.Constraint("Coincident", 15, 2, 12, 1),
    Sketcher.Constraint("Vertical", 0),
    Sketcher.Constraint("Horizontal", 1),
    Sketcher.Constraint("Vertical", 2),
    Sketcher.Constraint("Vertical", 4),
    Sketcher.Constraint("Horizontal", 5),
    Sketcher.Constraint("Vertical", 6),
    Sketcher.Constraint("Horizontal", 7),
    Sketcher.Constraint("Vertical", 8),
    Sketcher.Constraint("Horizontal", 9),
    Sketcher.Constraint("Vertical", 10),
    Sketcher.Constraint("Horizontal", 11),
    Sketcher.Constraint("Vertical", 12),
    Sketcher.Constraint("Horizontal", 13),
    Sketcher.Constraint("Vertical", 14),
    Sketcher.Constraint("Horizontal", 15),
    Sketcher.Constraint("Horizontal", 9, 2, 12, 2),
    Sketcher.Constraint("Horizontal", 11, 2, 14, 2),
    Sketcher.Constraint("Vertical", 7, 2, 8, 2),
    Sketcher.Constraint("Vertical", 6, 2, 13, 2),
    Sketcher.Constraint("Equal", 11, 13),
    Sketcher.Constraint("Equal", 2, 8),
    Sketcher.Constraint("Radius", 3, 4.0),
    Sketcher.Constraint("DistanceX", 1, 1, 1, 2, 6.0),
    Sketcher.Constraint("DistanceX", 5, 1, 5, 2, 7.0),
    Sketcher.Constraint("DistanceX", 9, 1, 9, 2, 5.0),
    Sketcher.Constraint("DistanceY", 0, 2, 0, 1, 17.0),
    Sketcher.Constraint("DistanceY", 2, 1, 2, 2, 8.0),
    Sketcher.Constraint("DistanceY", 4, 2, 4, 1, 3.0),
    Sketcher.Constraint("DistanceY", 7, 2, 8, 2, 9.0),
    Sketcher.Constraint("DistanceX", -1, 1, 3, 3, 36.5),
    Sketcher.Constraint("DistanceY", 3, 3, -1, 1, 43.25),
])
pocket17 = doc.addObject("PartDesign::Pocket", "Pocket016")
body.addObject(pocket17)
pocket17.Profile = sketch20
pocket17.Length = 7

doc.recompute()
